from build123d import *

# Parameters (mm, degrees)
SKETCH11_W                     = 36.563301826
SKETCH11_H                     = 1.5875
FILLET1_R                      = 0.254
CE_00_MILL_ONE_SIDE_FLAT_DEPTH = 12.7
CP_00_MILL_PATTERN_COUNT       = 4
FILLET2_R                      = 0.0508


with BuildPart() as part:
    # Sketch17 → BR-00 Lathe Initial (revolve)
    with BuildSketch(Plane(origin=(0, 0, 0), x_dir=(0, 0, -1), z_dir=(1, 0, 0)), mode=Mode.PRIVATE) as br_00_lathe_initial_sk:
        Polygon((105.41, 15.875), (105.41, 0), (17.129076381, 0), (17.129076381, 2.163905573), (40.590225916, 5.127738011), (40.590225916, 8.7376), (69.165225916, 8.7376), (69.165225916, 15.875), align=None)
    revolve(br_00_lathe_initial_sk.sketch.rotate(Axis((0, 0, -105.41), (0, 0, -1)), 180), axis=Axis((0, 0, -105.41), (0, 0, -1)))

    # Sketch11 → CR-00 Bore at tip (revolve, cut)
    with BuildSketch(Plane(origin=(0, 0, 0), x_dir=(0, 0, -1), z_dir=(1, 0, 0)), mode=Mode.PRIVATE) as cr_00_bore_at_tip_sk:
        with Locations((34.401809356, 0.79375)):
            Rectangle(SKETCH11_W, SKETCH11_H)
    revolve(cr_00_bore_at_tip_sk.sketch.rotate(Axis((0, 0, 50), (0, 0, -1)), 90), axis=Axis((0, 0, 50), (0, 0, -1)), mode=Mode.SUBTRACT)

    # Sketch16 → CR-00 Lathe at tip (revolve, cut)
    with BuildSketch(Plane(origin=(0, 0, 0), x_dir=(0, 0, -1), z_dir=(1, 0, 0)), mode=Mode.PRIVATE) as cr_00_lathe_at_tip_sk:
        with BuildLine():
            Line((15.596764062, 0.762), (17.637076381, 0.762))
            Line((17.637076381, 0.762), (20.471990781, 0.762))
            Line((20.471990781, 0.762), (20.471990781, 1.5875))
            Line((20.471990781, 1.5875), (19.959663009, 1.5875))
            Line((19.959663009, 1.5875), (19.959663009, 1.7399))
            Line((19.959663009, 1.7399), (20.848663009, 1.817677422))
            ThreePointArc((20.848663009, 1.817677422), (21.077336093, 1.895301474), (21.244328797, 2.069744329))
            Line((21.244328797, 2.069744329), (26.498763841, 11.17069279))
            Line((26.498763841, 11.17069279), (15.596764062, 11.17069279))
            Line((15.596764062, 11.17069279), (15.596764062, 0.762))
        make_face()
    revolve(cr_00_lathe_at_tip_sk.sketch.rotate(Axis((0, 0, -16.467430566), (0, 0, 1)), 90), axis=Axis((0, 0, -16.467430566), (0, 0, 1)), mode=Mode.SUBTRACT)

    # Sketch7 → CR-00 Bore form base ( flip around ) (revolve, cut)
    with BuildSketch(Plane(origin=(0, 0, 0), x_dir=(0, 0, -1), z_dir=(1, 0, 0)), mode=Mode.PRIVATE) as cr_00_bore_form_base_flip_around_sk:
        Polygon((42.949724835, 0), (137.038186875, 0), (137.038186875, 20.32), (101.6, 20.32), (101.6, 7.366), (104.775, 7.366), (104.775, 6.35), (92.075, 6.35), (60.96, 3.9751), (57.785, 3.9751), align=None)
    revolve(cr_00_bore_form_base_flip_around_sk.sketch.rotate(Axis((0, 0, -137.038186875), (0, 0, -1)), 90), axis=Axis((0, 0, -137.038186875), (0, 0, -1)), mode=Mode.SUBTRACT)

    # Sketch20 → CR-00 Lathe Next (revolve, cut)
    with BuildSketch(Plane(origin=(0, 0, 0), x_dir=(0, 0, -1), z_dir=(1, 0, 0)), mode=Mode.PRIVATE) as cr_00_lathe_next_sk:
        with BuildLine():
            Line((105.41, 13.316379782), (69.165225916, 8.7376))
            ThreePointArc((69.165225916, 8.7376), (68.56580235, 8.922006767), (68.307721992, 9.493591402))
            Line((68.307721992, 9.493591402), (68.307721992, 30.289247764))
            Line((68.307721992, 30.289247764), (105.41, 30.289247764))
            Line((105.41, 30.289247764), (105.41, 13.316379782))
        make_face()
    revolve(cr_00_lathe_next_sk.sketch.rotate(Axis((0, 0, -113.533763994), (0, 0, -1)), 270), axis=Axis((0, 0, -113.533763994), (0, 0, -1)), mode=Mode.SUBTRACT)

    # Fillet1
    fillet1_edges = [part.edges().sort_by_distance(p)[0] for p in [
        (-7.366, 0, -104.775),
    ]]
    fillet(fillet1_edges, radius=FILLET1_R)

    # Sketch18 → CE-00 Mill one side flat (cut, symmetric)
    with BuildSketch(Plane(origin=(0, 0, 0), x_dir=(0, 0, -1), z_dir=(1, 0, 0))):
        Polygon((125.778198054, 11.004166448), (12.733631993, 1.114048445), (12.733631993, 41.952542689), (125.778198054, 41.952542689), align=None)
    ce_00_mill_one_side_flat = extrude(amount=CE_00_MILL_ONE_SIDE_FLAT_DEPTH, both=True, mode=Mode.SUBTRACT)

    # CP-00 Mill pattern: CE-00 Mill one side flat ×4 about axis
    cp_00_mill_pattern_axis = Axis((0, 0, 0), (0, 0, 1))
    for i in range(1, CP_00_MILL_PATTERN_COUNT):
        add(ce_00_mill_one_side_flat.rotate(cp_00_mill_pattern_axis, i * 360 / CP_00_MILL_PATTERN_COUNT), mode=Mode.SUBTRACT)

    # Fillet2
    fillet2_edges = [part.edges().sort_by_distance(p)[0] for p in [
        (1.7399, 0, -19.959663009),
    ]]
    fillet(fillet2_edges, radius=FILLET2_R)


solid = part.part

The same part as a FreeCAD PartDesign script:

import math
import FreeCAD as App
import Part
import Sketcher
Q = App.Units.Quantity


def edges_at(feature, points):
    """Names of the edges that pass closest to the given points."""
    edges = feature.Shape.Edges
    near = lambda p: min(range(len(edges)), key=lambda i: edges[i].distToShape(Part.Vertex(*p))[0])
    return sorted({f"Edge{near(p) + 1}" for p in points})


def add_polygon(sketch, points):
    """Adds a closed chain of lines whose ends are joined by coincident constraints."""
    first, n = sketch.GeometryCount, len(points)
    for a, b in zip(points, points[1:] + points[:1]):
        sketch.addGeometry(Part.LineSegment(App.Vector(*a, 0), App.Vector(*b, 0)), False)
    for i in range(n):
        sketch.addConstraint(Sketcher.Constraint("Coincident", first + i, 2, first + (i + 1) % n, 1))

doc = App.newDocument("Part")
body = doc.addObject("PartDesign::Body", "Body")

# Sketch on YZ plane
sketch1 = body.newObject("Sketcher::SketchObject", "Sketch")
sketch1.AttachmentSupport = (doc.getObject("YZ_Plane"), [""])
sketch1.MapMode = "FlatFace"
add_polygon(sketch1, [(0, -105.4), (15.9, -105.4), (15.9, -69.2), (8.7, -69.2), (8.7, -40.6), (5.1, -40.6), (2.2, -17.1), (0, -17.1)])  # lines 0-7
sketch1.addConstraint([
    Sketcher.Constraint("Horizontal", 0),
    Sketcher.Constraint("Vertical", 1),
    Sketcher.Constraint("Horizontal", 2),
    Sketcher.Constraint("Vertical", 3),
    Sketcher.Constraint("Horizontal", 4),
    Sketcher.Constraint("Horizontal", 6),
    Sketcher.Constraint("Vertical", 7),
    Sketcher.Constraint("PointOnObject", 6, 2, -2),
    Sketcher.Constraint("Angle", 5, Q("97.2 deg")),
    Sketcher.Constraint("DistanceX", 0, 1, 0, 2, Q("0.625 in")),
    Sketcher.Constraint("DistanceX", 2, 2, 2, 1, Q("0.281 in")),
    Sketcher.Constraint("DistanceY", 3, 1, 3, 2, Q("1.125 in")),
    Sketcher.Constraint("DistanceY", 0, 2, -1, 1, Q("4.15 in")),
    Sketcher.Constraint("DistanceX", 4, 2, 4, 1, Q("3.609862 mm")),
    Sketcher.Constraint("Distance", 5, Q("23.647618 mm")),
    Sketcher.Constraint("DistanceY", 1, 1, 1, 2, Q("36.244774 mm")),
])
revolution = body.newObject("PartDesign::Revolution", "Revolution")
revolution.Profile = sketch1
revolution.ReferenceAxis = (sketch1, ["V_Axis"])
revolution.Angle = 360

# Sketch on YZ plane
sketch2 = body.newObject("Sketcher::SketchObject", "Sketch001")
sketch2.AttachmentSupport = (doc.getObject("YZ_Plane"), [""])
sketch2.MapMode = "FlatFace"
add_polygon(sketch2, [(1.6, -16.1), (0, -16.1), (0, -52.7), (1.6, -52.7)])  # lines 0-3
sketch2.addConstraint([
    Sketcher.Constraint("Horizontal", 0),
    Sketcher.Constraint("Vertical", 1),
    Sketcher.Constraint("Horizontal", 2),
    Sketcher.Constraint("Vertical", 3),
    Sketcher.Constraint("PointOnObject", 0, 2, -2),
    Sketcher.Constraint("DistanceX", 0, 2, 0, 1, Q("0.0625 in")),
    Sketcher.Constraint("DistanceY", 1, 2, 1, 1, Q("1.4395001 in")),
    Sketcher.Constraint("DistanceY", 0, 2, -1, 1, Q("16.120158 mm")),
])
groove = body.newObject("PartDesign::Groove", "Groove")
groove.Profile = sketch2
groove.ReferenceAxis = (sketch2, ["V_Axis"])
groove.Angle = 360

# Sketch on YZ plane
sketch3 = body.newObject("Sketcher::SketchObject", "Sketch002")
sketch3.AttachmentSupport = (doc.getObject("YZ_Plane"), [""])
sketch3.MapMode = "FlatFace"
sketch3.addGeometry([
    Part.LineSegment(App.Vector(0.76, -15.6, 0), App.Vector(0.76, -20.47, 0)),  # 0
    Part.LineSegment(App.Vector(0.76, -20.47, 0), App.Vector(1.59, -20.47, 0)),  # 1
    Part.LineSegment(App.Vector(1.59, -20.47, 0), App.Vector(1.59, -19.96, 0)),  # 2
    Part.LineSegment(App.Vector(1.59, -19.96, 0), App.Vector(1.74, -19.96, 0)),  # 3
    Part.LineSegment(App.Vector(1.74, -19.96, 0), App.Vector(1.82, -20.85, 0)),  # 4
    Part.ArcOfCircle(Part.Circle(App.Vector(2.32, -20.8, 0), App.Vector(0, 0, 1), 0.51), math.radians(-175), math.radians(-120)),  # 5
    Part.LineSegment(App.Vector(2.07, -21.24, 0), App.Vector(11.17, -26.5, 0)),  # 6
    Part.LineSegment(App.Vector(11.17, -26.5, 0), App.Vector(11.17, -15.6, 0)),  # 7
    Part.LineSegment(App.Vector(11.17, -15.6, 0), App.Vector(0.76, -15.6, 0)),  # 8
], False)
sketch3.addConstraint([
    Sketcher.Constraint("Coincident", 0, 2, 1, 1),
    Sketcher.Constraint("Coincident", 1, 2, 2, 1),
    Sketcher.Constraint("Coincident", 2, 2, 3, 1),
    Sketcher.Constraint("Coincident", 3, 2, 4, 1),
    Sketcher.Constraint("Tangent", 4, 2, 5, 1),
    Sketcher.Constraint("Tangent", 5, 2, 6, 1),
    Sketcher.Constraint("Coincident", 6, 2, 7, 1),
    Sketcher.Constraint("Coincident", 7, 2, 8, 1),
    Sketcher.Constraint("Coincident", 8, 2, 0, 1),
    Sketcher.Constraint("Vertical", 0),
    Sketcher.Constraint("Horizontal", 1),
    Sketcher.Constraint("Vertical", 2),
    Sketcher.Constraint("Horizontal", 3),
    Sketcher.Constraint("Vertical", 7),
    Sketcher.Constraint("Horizontal", 8),
    Sketcher.Constraint("Radius", 5, Q("0.02 in")),
    Sketcher.Constraint("Angle", 4, Q("-85 deg")),
    Sketcher.Constraint("Angle", 6, Q("-30 deg")),
    Sketcher.Constraint("DistanceX", 3, 1, 3, 2, Q("0.006 in")),
    Sketcher.Constraint("DistanceX", -1, 1, 0, 2, Q("0.03 in")),
    Sketcher.Constraint("DistanceX", 1, 1, 1, 2, Q("0.0325 in")),
    Sketcher.Constraint("DistanceY", 4, 2, 3, 2, Q("0.035 in")),
    Sketcher.Constraint("DistanceY", 7, 1, 7, 2, Q("10.902 mm")),
    Sketcher.Constraint("DistanceY", 6, 2, 4, 2, Q("5.650101 mm")),
    Sketcher.Constraint("DistanceY", 0, 2, 0, 1, Q("4.875227 mm")),
    Sketcher.Constraint("DistanceY", 0, 2, -1, 1, Q("20.471991 mm")),
])
groove2 = body.newObject("PartDesign::Groove", "Groove001")
groove2.Profile = sketch3
groove2.ReferenceAxis = (sketch3, ["V_Axis"])
groove2.Angle = 360

# Sketch on YZ plane
sketch4 = body.newObject("Sketcher::SketchObject", "Sketch003")
sketch4.AttachmentSupport = (doc.getObject("YZ_Plane"), [""])
sketch4.MapMode = "FlatFace"
add_polygon(sketch4, [(0, -42.9), (0, -137), (20.3, -137), (20.3, -101.6), (7.4, -101.6), (7.4, -104.8), (6.3, -104.8), (6.3, -92.1), (4, -61), (4, -57.8)])  # lines 0-9
sketch4.addConstraint([
    Sketcher.Constraint("Vertical", 0),
    Sketcher.Constraint("Horizontal", 1),
    Sketcher.Constraint("Vertical", 2),
    Sketcher.Constraint("Horizontal", 3),
    Sketcher.Constraint("Vertical", 4),
    Sketcher.Constraint("Horizontal", 5),
    Sketcher.Constraint("Vertical", 6),
    Sketcher.Constraint("Vertical", 8),
    Sketcher.Constraint("PointOnObject", 0, 2, -2),
    Sketcher.Constraint("Equal", 4, 8),
    Sketcher.Constraint("DistanceX", 1, 1, 1, 2, Q("0.8 in")),
    Sketcher.Constraint("DistanceY", 6, 1, 6, 2, Q("0.5 in")),
    Sketcher.Constraint("DistanceY", 2, 2, -1, 1, Q("4 in")),
    Sketcher.Constraint("Angle", 9, Q("105 deg")),
    Sketcher.Constraint("DistanceX", 3, 2, 3, 1, Q("0.51 in")),
    Sketcher.Constraint("DistanceX", 5, 2, 5, 1, Q("0.04 in")),
    Sketcher.Constraint("DistanceY", 7, 2, -1, 1, Q("2.4 in")),
    Sketcher.Constraint("DistanceY", 4, 2, 4, 1, Q("0.125 in")),
    Sketcher.Constraint("DistanceX", -1, 1, 7, 2, Q("0.1565 in")),
    Sketcher.Constraint("DistanceY", 0, 2, 0, 1, Q("94.088462 mm")),
])
groove3 = body.newObject("PartDesign::Groove", "Groove002")
groove3.Profile = sketch4
groove3.ReferenceAxis = (sketch4, ["V_Axis"])
groove3.Angle = 360

# Sketch on YZ plane
sketch5 = body.newObject("Sketcher::SketchObject", "Sketch004")
sketch5.AttachmentSupport = (doc.getObject("YZ_Plane"), [""])
sketch5.MapMode = "FlatFace"
sketch5.addGeometry([
    Part.LineSegment(App.Vector(8.7, -69.2, 0), App.Vector(13.3, -105.4, 0)),  # 0
    Part.LineSegment(App.Vector(13.3, -105.4, 0), App.Vector(30.3, -105.4, 0)),  # 1
    Part.LineSegment(App.Vector(30.3, -105.4, 0), App.Vector(30.3, -68.3, 0)),  # 2
    Part.LineSegment(App.Vector(30.3, -68.3, 0), App.Vector(9.5, -68.3, 0)),  # 3
    Part.ArcOfCircle(Part.Circle(App.Vector(9.5, -69.1, 0), App.Vector(0, 0, 1), 0.8), math.radians(90), math.radians(187)),  # 4
], False)
sketch5.addConstraint([
    Sketcher.Constraint("Coincident", 0, 2, 1, 1),
    Sketcher.Constraint("Coincident", 1, 2, 2, 1),
    Sketcher.Constraint("Coincident", 2, 2, 3, 1),
    Sketcher.Constraint("Tangent", 3, 2, 4, 1),
    Sketcher.Constraint("Tangent", 4, 2, 0, 1),
    Sketcher.Constraint("Horizontal", 1),
    Sketcher.Constraint("Vertical", 2),
    Sketcher.Constraint("Horizontal", 3),
    Sketcher.Constraint("Radius", 4, Q("0.03 in")),
    Sketcher.Constraint("Angle", 0, Q("-82.8 deg")),
    Sketcher.Constraint("DistanceY", 0, 2, -1, 1, Q("4.15 in")),
    Sketcher.Constraint("DistanceX", -1, 1, 4, 2, Q("0.344 in")),
    Sketcher.Constraint("DistanceY", 2, 1, 2, 2, Q("37.102278 mm")),
    Sketcher.Constraint("DistanceX", 1, 1, 1, 2, Q("16.972868 mm")),
])
groove4 = body.newObject("PartDesign::Groove", "Groove003")
groove4.Profile = sketch5
groove4.ReferenceAxis = (sketch5, ["V_Axis"])
groove4.Angle = 360
doc.recompute()

fillet = body.newObject("PartDesign::Fillet", "Fillet")
fillet.Base = (groove4, edges_at(groove4, [(-7.366, 0, -104.775)]))
fillet.Radius = Q("0.01 in")

# Sketch on YZ plane
sketch6 = body.newObject("Sketcher::SketchObject", "Sketch005")
sketch6.AttachmentSupport = (doc.getObject("YZ_Plane"), [""])
sketch6.MapMode = "FlatFace"
add_polygon(sketch6, [(1, -13), (11, -126), (42, -126), (42, -13)])  # lines 0-3
sketch6.addConstraint([
    Sketcher.Constraint("Horizontal", 1),
    Sketcher.Constraint("Vertical", 2),
    Sketcher.Constraint("Horizontal", 3),
    Sketcher.Constraint("Angle", 0, Q("-85 deg")),
    Sketcher.Constraint("DistanceY", 0, 2, -1, 1, Q("125.778198 mm")),
    Sketcher.Constraint("DistanceX", 1, 1, 1, 2, Q("30.948376 mm")),
    Sketcher.Constraint("DistanceX", 3, 2, 3, 1, Q("40.838494 mm")),
    Sketcher.Constraint("DistanceX", -1, 1, 3, 2, Q("1.114048 mm")),
])
pocket1 = body.newObject("PartDesign::Pocket", "Pocket")
pocket1.Profile = sketch6
pocket1.Length = Q("1 in")
pocket1.Midplane = True
doc.recompute()

polarpattern = body.newObject("PartDesign::PolarPattern", "PolarPattern")
polarpattern.Originals = [pocket1]
polarpattern.Axis = (doc.getObject("Z_Axis"), [""])
polarpattern.Angle = 360
polarpattern.Occurrences = 4
body.Tip = polarpattern
doc.recompute()

fillet2 = body.newObject("PartDesign::Fillet", "Fillet001")
fillet2.Base = (polarpattern, edges_at(polarpattern, [(1.74, 0, -19.96)]))
fillet2.Radius = Q("0.002 in")

doc.recompute()
